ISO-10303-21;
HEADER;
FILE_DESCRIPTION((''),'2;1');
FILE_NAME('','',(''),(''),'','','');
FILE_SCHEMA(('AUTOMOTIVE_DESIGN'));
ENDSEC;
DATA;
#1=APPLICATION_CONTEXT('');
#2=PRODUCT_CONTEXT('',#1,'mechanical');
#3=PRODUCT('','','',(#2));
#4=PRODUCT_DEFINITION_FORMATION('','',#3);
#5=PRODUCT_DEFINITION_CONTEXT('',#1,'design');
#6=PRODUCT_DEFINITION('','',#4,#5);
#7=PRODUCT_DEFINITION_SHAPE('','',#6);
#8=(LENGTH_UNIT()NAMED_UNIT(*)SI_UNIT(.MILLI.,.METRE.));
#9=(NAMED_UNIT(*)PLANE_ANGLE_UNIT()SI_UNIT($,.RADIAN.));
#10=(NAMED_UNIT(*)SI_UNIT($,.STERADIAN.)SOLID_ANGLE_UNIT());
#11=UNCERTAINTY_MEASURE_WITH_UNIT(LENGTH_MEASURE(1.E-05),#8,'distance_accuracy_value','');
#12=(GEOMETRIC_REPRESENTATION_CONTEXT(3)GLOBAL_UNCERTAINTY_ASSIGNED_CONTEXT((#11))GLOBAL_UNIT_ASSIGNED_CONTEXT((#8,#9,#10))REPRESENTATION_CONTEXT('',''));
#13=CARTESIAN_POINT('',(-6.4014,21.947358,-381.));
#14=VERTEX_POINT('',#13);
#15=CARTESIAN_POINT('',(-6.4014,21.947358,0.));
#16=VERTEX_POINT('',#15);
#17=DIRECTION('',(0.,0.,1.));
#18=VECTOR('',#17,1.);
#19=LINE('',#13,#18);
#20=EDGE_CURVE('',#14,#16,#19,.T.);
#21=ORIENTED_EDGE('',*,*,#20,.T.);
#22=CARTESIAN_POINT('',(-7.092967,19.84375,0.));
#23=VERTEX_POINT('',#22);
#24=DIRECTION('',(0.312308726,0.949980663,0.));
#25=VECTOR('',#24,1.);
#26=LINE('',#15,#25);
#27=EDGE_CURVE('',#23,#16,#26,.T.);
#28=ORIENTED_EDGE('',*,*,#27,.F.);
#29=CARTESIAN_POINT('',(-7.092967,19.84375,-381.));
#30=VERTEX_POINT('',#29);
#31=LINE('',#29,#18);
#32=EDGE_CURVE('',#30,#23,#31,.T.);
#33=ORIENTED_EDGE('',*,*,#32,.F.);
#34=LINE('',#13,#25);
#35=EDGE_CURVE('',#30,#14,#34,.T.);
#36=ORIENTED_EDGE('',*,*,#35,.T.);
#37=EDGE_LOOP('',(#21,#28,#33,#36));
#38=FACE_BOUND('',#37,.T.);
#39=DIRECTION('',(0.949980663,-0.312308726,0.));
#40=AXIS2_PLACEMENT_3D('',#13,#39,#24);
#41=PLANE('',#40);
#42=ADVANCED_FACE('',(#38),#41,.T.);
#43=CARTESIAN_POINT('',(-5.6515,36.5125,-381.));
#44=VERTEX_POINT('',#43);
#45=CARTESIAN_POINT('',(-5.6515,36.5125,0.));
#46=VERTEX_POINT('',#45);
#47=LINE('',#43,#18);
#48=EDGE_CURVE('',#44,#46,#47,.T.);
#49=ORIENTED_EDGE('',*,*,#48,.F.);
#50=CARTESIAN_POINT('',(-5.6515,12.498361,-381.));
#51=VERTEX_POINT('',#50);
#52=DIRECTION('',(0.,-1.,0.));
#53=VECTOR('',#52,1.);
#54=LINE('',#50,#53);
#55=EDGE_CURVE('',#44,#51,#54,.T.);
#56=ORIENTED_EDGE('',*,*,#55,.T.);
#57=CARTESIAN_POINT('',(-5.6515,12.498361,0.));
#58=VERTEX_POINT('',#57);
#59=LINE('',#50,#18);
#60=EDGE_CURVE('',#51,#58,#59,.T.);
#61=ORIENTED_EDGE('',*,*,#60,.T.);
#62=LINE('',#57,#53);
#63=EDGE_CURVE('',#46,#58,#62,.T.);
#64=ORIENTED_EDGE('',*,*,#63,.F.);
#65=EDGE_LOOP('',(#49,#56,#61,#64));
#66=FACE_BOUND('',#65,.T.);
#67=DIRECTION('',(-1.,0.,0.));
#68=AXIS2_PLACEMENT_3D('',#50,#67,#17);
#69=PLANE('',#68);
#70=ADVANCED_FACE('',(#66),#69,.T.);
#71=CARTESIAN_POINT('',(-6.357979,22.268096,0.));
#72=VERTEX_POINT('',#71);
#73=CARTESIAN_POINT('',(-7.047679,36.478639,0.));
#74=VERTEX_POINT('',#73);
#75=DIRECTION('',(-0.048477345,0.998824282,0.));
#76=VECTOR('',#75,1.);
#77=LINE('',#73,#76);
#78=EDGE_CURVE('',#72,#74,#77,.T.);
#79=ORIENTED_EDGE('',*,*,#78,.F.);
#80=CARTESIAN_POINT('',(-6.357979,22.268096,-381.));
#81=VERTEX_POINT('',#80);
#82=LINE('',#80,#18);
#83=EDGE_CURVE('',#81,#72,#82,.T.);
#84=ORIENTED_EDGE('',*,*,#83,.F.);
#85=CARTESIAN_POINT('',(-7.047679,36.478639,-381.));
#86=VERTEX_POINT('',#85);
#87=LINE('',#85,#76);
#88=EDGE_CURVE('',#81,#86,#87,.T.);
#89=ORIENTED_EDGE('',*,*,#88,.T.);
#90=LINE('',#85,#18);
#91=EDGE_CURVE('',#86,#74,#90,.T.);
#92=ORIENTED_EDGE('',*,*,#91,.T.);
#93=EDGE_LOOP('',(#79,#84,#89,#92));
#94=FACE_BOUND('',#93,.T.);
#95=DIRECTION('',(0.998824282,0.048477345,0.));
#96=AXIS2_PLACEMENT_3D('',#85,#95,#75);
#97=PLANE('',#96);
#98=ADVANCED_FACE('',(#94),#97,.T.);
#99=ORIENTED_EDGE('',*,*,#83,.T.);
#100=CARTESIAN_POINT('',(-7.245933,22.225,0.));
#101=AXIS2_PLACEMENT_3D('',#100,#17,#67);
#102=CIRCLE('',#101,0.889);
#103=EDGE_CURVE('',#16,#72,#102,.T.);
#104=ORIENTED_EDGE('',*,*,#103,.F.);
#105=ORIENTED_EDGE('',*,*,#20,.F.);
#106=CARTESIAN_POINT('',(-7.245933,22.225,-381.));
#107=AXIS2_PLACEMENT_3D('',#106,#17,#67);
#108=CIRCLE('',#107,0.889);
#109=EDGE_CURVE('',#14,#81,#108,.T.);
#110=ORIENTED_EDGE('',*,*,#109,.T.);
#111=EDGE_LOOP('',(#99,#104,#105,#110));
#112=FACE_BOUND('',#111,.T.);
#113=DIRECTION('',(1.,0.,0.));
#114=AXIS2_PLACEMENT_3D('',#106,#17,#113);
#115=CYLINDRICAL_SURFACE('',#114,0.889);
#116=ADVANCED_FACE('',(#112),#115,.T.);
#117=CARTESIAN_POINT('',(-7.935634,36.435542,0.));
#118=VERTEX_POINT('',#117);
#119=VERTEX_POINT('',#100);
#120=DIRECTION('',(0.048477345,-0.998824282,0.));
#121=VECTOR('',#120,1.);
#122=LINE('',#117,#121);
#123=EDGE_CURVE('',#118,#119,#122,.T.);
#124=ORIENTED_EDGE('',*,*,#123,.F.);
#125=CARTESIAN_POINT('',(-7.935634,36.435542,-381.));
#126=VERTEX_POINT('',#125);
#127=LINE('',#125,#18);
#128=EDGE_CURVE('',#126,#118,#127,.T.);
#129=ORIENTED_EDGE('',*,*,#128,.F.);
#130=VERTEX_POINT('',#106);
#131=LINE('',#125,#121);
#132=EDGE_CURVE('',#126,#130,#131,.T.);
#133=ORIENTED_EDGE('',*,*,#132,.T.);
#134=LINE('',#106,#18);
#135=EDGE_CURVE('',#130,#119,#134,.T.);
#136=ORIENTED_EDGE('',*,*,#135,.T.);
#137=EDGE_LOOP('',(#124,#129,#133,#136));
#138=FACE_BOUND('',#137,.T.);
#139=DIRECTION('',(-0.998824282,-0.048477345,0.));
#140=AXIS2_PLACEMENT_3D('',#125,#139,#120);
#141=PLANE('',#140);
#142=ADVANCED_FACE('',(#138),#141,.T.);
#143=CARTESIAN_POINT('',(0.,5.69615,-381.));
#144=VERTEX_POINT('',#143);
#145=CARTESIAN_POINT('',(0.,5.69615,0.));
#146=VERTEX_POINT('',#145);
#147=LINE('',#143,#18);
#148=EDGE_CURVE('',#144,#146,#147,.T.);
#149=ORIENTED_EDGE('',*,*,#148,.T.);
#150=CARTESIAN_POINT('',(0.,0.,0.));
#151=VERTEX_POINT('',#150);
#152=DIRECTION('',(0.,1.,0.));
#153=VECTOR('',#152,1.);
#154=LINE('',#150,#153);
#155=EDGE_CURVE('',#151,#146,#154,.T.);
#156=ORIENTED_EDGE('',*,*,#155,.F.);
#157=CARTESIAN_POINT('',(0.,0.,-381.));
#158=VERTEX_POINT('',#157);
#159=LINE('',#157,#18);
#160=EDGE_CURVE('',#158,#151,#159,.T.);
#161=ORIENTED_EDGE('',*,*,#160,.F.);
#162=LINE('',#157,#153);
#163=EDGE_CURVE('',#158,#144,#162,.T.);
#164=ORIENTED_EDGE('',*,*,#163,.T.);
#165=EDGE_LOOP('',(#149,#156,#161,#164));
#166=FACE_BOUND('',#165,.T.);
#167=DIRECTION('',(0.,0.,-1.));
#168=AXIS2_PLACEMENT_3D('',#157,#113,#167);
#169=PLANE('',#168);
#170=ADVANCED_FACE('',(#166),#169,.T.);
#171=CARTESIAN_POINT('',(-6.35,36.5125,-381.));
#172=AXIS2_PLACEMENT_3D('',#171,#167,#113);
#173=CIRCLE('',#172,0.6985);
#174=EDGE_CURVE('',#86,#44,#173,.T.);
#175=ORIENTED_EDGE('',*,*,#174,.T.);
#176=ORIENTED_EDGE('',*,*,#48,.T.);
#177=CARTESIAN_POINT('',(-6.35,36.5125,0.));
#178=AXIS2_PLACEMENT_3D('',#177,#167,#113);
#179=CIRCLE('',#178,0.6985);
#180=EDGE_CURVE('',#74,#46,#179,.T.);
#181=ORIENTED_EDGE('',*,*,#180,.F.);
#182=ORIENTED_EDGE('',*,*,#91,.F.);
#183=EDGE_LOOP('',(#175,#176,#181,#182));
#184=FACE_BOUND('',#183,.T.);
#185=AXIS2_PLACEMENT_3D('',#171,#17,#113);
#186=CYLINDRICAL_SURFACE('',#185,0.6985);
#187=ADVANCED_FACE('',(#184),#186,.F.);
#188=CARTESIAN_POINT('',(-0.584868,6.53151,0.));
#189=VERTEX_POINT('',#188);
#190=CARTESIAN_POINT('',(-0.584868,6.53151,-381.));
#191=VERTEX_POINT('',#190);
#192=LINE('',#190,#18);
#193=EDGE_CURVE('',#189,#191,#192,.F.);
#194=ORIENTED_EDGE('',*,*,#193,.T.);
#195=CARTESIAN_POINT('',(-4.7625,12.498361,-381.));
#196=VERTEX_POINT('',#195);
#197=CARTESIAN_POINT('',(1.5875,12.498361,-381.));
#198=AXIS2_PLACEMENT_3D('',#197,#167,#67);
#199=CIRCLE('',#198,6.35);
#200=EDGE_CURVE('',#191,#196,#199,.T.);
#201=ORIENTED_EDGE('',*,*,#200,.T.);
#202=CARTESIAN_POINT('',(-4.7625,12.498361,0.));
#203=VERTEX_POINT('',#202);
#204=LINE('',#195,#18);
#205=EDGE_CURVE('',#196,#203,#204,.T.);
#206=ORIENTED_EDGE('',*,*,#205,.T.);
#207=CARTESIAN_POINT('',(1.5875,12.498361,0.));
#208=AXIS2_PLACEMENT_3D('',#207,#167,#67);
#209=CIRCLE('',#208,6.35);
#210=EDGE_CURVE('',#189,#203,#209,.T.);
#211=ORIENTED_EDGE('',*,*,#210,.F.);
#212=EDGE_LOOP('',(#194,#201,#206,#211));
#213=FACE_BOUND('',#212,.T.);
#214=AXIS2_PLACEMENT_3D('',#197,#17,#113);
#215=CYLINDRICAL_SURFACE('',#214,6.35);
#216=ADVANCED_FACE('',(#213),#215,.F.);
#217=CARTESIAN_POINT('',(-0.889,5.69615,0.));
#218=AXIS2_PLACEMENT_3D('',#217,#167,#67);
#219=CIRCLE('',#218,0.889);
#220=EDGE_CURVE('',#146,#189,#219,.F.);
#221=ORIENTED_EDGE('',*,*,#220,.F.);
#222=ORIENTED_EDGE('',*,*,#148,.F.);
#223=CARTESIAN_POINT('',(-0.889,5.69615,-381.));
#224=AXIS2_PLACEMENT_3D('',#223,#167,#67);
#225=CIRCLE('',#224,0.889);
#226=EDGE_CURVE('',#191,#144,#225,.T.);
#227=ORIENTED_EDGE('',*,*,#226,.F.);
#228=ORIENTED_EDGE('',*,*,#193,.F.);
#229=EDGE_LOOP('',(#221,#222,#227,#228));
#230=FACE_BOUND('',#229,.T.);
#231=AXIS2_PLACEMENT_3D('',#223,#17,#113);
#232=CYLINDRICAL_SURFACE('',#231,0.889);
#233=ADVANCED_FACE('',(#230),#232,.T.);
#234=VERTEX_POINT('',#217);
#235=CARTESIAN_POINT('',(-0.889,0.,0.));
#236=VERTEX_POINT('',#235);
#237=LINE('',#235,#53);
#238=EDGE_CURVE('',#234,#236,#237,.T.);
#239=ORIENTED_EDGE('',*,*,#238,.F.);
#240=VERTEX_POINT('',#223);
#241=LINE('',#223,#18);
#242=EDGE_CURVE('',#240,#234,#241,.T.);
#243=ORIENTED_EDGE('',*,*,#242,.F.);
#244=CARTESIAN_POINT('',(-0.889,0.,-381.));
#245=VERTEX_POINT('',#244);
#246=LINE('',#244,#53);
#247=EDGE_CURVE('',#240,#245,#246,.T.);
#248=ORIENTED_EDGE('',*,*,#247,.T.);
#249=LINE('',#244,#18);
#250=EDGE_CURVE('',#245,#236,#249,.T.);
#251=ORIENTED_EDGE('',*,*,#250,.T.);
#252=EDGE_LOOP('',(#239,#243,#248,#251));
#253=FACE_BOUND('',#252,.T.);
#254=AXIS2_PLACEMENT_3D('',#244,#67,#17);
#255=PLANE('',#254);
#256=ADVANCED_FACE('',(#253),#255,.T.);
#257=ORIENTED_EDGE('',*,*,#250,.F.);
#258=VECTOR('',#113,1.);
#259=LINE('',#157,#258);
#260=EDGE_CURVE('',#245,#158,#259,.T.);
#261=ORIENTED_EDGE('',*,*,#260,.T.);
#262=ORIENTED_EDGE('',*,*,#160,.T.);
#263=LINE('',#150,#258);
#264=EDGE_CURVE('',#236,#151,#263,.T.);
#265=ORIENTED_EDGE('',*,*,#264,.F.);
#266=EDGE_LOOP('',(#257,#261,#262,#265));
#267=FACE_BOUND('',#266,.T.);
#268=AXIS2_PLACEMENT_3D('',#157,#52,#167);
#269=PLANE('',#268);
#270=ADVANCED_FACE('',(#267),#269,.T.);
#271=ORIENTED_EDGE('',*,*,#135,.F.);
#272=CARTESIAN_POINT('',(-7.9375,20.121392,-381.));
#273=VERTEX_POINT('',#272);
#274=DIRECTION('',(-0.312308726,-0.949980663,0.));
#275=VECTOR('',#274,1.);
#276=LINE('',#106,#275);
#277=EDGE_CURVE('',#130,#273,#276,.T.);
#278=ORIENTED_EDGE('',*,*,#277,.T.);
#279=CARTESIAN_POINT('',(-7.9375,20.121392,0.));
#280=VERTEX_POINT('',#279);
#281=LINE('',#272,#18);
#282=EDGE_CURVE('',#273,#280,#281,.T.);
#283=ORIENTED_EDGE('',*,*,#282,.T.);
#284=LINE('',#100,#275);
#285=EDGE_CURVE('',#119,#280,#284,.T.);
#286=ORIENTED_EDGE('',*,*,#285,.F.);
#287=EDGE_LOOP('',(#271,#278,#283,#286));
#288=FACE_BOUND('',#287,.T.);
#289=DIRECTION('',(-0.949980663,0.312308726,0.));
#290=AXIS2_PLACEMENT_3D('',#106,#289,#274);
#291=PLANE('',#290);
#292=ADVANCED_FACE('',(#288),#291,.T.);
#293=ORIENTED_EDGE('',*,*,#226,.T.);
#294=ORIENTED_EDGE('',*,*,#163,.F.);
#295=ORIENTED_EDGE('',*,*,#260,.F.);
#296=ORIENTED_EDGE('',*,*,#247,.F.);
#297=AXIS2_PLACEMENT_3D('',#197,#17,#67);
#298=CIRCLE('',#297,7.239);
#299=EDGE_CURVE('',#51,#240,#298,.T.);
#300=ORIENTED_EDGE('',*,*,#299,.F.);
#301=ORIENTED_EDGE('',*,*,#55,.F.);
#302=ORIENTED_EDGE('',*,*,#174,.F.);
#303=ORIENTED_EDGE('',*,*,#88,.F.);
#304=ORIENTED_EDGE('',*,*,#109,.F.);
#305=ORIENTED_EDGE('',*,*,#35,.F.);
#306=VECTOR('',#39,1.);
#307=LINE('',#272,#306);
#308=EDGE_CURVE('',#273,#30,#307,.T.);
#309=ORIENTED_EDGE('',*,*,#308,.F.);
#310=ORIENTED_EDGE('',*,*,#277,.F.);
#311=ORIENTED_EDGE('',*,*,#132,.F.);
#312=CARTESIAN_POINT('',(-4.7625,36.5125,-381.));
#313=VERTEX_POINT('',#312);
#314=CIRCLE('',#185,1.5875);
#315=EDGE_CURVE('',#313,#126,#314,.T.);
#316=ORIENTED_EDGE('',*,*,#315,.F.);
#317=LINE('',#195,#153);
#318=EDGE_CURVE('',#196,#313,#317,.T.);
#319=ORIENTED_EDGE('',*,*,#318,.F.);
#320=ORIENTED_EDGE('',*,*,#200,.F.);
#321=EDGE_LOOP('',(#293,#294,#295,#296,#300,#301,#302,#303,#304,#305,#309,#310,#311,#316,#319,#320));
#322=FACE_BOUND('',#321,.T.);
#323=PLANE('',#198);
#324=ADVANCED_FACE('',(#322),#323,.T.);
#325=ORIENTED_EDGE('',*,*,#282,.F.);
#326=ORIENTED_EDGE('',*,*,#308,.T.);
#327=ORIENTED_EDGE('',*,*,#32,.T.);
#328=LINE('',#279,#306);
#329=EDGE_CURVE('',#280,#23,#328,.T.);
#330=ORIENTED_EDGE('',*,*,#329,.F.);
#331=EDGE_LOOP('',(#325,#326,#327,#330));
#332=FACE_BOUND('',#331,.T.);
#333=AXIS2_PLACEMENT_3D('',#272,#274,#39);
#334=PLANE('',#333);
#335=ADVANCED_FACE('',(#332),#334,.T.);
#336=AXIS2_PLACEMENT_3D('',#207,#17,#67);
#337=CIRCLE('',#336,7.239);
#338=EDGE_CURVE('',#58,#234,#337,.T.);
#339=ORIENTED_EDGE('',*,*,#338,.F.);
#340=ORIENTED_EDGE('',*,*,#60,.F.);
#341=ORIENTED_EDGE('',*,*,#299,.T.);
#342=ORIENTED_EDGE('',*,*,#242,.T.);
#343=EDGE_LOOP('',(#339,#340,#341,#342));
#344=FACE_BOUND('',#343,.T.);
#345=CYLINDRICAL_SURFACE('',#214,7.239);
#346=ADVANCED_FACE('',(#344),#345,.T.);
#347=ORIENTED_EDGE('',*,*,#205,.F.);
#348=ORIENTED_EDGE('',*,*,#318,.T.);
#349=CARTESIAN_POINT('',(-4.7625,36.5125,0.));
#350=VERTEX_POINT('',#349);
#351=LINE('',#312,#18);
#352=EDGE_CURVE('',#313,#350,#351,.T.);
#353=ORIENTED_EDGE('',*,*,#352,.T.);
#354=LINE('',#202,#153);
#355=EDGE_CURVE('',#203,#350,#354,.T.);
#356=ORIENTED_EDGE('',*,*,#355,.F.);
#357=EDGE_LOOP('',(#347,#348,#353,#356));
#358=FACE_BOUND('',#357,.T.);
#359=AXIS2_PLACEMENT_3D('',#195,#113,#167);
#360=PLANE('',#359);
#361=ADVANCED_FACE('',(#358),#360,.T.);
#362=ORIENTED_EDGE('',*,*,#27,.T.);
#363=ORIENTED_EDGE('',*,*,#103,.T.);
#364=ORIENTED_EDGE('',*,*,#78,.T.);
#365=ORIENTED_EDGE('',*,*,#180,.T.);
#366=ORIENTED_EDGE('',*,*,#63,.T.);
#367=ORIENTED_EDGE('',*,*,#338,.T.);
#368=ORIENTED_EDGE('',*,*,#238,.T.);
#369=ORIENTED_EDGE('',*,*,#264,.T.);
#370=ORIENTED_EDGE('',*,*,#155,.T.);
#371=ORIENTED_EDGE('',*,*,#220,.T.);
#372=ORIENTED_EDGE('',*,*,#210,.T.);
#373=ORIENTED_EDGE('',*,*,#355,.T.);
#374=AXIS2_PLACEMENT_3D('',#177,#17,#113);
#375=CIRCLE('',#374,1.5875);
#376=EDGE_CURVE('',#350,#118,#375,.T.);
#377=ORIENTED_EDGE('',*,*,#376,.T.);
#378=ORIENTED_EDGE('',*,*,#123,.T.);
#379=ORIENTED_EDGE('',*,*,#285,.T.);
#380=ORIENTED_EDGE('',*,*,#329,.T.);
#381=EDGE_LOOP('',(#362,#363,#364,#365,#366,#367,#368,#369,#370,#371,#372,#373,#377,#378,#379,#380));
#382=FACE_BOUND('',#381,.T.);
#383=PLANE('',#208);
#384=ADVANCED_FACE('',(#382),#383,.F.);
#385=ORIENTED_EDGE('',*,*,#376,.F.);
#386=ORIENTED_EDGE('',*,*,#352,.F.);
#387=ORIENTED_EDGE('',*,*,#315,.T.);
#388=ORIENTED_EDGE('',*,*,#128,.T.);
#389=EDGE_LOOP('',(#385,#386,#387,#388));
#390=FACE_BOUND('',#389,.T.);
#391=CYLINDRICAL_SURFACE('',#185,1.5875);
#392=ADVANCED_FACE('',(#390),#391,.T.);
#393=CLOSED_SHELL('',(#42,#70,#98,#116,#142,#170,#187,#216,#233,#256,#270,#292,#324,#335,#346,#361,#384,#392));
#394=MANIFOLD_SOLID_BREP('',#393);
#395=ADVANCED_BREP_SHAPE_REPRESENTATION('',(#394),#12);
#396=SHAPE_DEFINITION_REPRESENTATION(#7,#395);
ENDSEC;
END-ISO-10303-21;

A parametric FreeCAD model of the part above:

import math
import FreeCAD as App
import Part
import Sketcher
Q = App.Units.Quantity


def edges_at(feature, points):
    """Names of the edges that pass closest to the given points."""
    edges = feature.Shape.Edges
    near = lambda p: min(range(len(edges)), key=lambda i: edges[i].distToShape(Part.Vertex(*p))[0])
    return sorted({f"Edge{near(p) + 1}" for p in points})

doc = App.newDocument("Part")
params = doc.addObject("Spreadsheet::Sheet", "Params")
for row, (alias, value) in enumerate([
    ("sketch1_radius", "0.25 in"),
    ("sketch1_radius2", "0.0625 in"),
    ("sketch1_radius3", "0.035 in"),
    ("sketch1_height", "0.25 in"),
    ("sketch1_width", "0.035 in"),
    ("pad1_length", "15 in"),
    ("fillet_radius", "0.035 in"),
], start=1):
    params.set(f"A{row}", alias)
    params.set(f"B{row}", "=" + value)
    params.setAlias(f"B{row}", alias)

body = doc.addObject("PartDesign::Body", "Body")

sketch1 = body.newObject("Sketcher::SketchObject", "Sketch")
sketch1.AttachmentSupport = (doc.getObject("XY_Plane"), [""])
sketch1.MapMode = "FlatFace"
sketch1.addGeometry([
    Part.LineSegment(App.Vector(0, 0, 0), App.Vector(0, 6.35, 0)),
    Part.ArcOfCircle(Part.Circle(App.Vector(1.5875, 12.498361, 0), App.Vector(0, 0, 1), 6.35), math.radians(180), math.radians(255.522488)),
    Part.LineSegment(App.Vector(-4.7625, 12.498361, 0), App.Vector(-4.7625, 36.5125, 0)),
    Part.ArcOfCircle(Part.Circle(App.Vector(-6.35, 36.5125, 0), App.Vector(0, 0, 1), 1.5875), math.radians(0), math.radians(182.778636)),
    Part.LineSegment(App.Vector(-7.935634, 36.435542, 0), App.Vector(-7.245933, 22.225, 0)),
    Part.LineSegment(App.Vector(-7.245933, 22.225, 0), App.Vector(-7.9375, 20.121392, 0)),
    Part.LineSegment(App.Vector(-7.9375, 20.121392, 0), App.Vector(-7.092967, 19.84375, 0)),
    Part.LineSegment(App.Vector(-7.092967, 19.84375, 0), App.Vector(-6.4014, 21.947358, 0)),
    Part.ArcOfCircle(Part.Circle(App.Vector(-7.245933, 22.225, 0), App.Vector(0, 0, 1), 0.889), math.radians(-18.19842), math.radians(2.778636)),
    Part.LineSegment(App.Vector(-6.357979, 22.268096, 0), App.Vector(-7.047679, 36.478639, 0)),
    Part.ArcOfCircle(Part.Circle(App.Vector(-6.35, 36.5125, 0), App.Vector(0, 0, 1), 0.6985), math.radians(0), math.radians(182.778636)),
    Part.LineSegment(App.Vector(-5.6515, 36.5125, 0), App.Vector(-5.6515, 12.498361, 0)),
    Part.ArcOfCircle(Part.Circle(App.Vector(1.5875, 12.498361, 0), App.Vector(0, 0, 1), 7.239), math.radians(180), math.radians(249.99481)),
    Part.LineSegment(App.Vector(-0.889, 5.69615, 0), App.Vector(-0.889, 0, 0)),
    Part.LineSegment(App.Vector(-0.889, 0, 0), App.Vector(0, 0, 0)),
], False)
sketch1.addConstraint([
    Sketcher.Constraint("Coincident", 0, 2, 1, 2),
    Sketcher.Constraint("Tangent", 1, 1, 2, 1),
    Sketcher.Constraint("Tangent", 2, 2, 3, 1),
    Sketcher.Constraint("Tangent", 3, 2, 4, 1),
    Sketcher.Constraint("Coincident", 4, 2, 5, 1),
    Sketcher.Constraint("Coincident", 5, 2, 6, 1),
    Sketcher.Constraint("Coincident", 6, 2, 7, 1),
    Sketcher.Constraint("Tangent", 7, 2, 8, 1),
    Sketcher.Constraint("Tangent", 8, 2, 9, 1),
    Sketcher.Constraint("Tangent", 9, 2, 10, 2),
    Sketcher.Constraint("Tangent", 10, 1, 11, 1),
    Sketcher.Constraint("Tangent", 11, 2, 12, 1),
    Sketcher.Constraint("Coincident", 12, 2, 13, 1),
    Sketcher.Constraint("Coincident", 13, 2, 14, 1),
    Sketcher.Constraint("Coincident", 14, 2, 0, 1),
    Sketcher.Constraint("Vertical", 0),
    Sketcher.Constraint("Vertical", 2),
    Sketcher.Constraint("Vertical", 11),
    Sketcher.Constraint("Vertical", 13),
    Sketcher.Constraint("Horizontal", 14),
    Sketcher.Constraint("Coincident", 14, 2, -1, 1),
    Sketcher.Constraint("Coincident", 10, 3, 3, 3),
    Sketcher.Constraint("Coincident", 12, 3, 1, 3),
    Sketcher.Constraint("Coincident", 4, 2, 8, 3),
    Sketcher.Constraint("Perpendicular", 5, 6),
    Sketcher.Constraint("Perpendicular", 6, 7),
    Sketcher.Constraint("Parallel", 4, 9),
    Sketcher.Constraint("Radius", 1, Q("0.25 in")),
    Sketcher.Constraint("Radius", 3, Q("0.0625 in")),
    Sketcher.Constraint("Radius", 8, Q("0.035 in")),
    Sketcher.Constraint("DistanceY", 0, 1, 0, 2, Q("0.25 in")),
    Sketcher.Constraint("DistanceX", 14, 1, 14, 2, Q("0.035 in")),
    Sketcher.Constraint("DistanceX", 3, 3, -1, 1, Q("0.25 in")),
    Sketcher.Constraint("DistanceX", 5, 2, 11, 2, Q("0.09 in")),
    Sketcher.Constraint("DistanceY", -1, 1, 3, 3, Q("1.4375 in")),
    Sketcher.Constraint("DistanceY", -1, 1, 8, 3, Q("0.875 in")),
    Sketcher.Constraint("DistanceY", -1, 1, 6, 2, Q("0.78125 in")),
    Sketcher.Constraint("DistanceX", 7, 2, -1, 1, 6.4014),
])
sketch1.setExpression("Constraints[27]", "Params.sketch1_radius")
sketch1.setExpression("Constraints[28]", "Params.sketch1_radius2")
sketch1.setExpression("Constraints[29]", "Params.sketch1_radius3")
sketch1.setExpression("Constraints[30]", "Params.sketch1_height")
sketch1.setExpression("Constraints[31]", "Params.sketch1_width")
pad1 = body.newObject("PartDesign::Pad", "Pad")
pad1.Profile = sketch1
pad1.setExpression("Length", "Params.pad1_length")
pad1.Reversed = True
doc.recompute()

fillet = body.newObject("PartDesign::Fillet", "Fillet")
fillet.Base = (pad1, edges_at(pad1, [(0, 6.35, -190.5)]))
fillet.setExpression("Radius", "Params.fillet_radius")

doc.recompute()
